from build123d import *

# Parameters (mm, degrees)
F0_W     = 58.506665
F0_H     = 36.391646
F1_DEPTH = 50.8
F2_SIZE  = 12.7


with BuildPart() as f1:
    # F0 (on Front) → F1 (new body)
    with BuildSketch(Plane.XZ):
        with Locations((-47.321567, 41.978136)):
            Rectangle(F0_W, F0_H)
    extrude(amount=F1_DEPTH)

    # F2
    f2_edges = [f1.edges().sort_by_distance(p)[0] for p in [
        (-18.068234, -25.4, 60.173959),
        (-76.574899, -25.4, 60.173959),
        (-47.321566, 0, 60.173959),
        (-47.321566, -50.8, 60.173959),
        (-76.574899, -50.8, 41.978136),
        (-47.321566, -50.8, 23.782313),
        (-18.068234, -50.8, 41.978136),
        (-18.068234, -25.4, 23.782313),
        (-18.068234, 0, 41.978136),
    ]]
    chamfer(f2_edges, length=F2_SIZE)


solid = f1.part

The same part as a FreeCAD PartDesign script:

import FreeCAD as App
import Part
import Sketcher
Q = App.Units.Quantity


def edges_at(feature, points):
    """Names of the edges that pass closest to the given points."""
    edges = feature.Shape.Edges
    near = lambda p: min(range(len(edges)), key=lambda i: edges[i].distToShape(Part.Vertex(*p))[0])
    return sorted({f"Edge{near(p) + 1}" for p in points})

doc = App.newDocument("Part")
params = doc.addObject("Spreadsheet::Sheet", "Params")
for row, (alias, value) in enumerate([
    ("pad1_length", "2 in"),
    ("chamfer_size", "0.5 in"),
], start=1):
    params.set(f"A{row}", alias)
    params.set(f"B{row}", "=" + value)
    params.setAlias(f"B{row}", alias)

body = doc.addObject("PartDesign::Body", "Body")

# Sketch on XZ plane
sketch1 = doc.addObject("Sketcher::SketchObject", "Sketch")
body.addObject(sketch1)
sketch1.AttachmentSupport = (doc.XZ_Plane, [""])
sketch1.MapMode = "FlatFace"
sketch1.addGeometry(Part.LineSegment(App.Vector(-76.5749, 60.173959, 0), App.Vector(-76.5749, 23.782313, 0)), False)
sketch1.addGeometry(Part.LineSegment(App.Vector(-76.5749, 23.782313, 0), App.Vector(-18.068234, 23.782313, 0)), False)
sketch1.addGeometry(Part.LineSegment(App.Vector(-18.068234, 23.782313, 0), App.Vector(-18.068234, 60.173959, 0)), False)
sketch1.addGeometry(Part.LineSegment(App.Vector(-18.068234, 60.173959, 0), App.Vector(-76.5749, 60.173959, 0)), False)
sketch1.addConstraint(Sketcher.Constraint("Coincident", 0, 2, 1, 1))
sketch1.addConstraint(Sketcher.Constraint("Coincident", 1, 2, 2, 1))
sketch1.addConstraint(Sketcher.Constraint("Coincident", 2, 2, 3, 1))
sketch1.addConstraint(Sketcher.Constraint("Coincident", 3, 2, 0, 1))
sketch1.addConstraint(Sketcher.Constraint("Vertical", 0))
sketch1.addConstraint(Sketcher.Constraint("Horizontal", 1))
sketch1.addConstraint(Sketcher.Constraint("Vertical", 2))
sketch1.addConstraint(Sketcher.Constraint("Horizontal", 3))
sketch1.addConstraint(Sketcher.Constraint("DistanceX", 0, 2, -1, 1, Q("76.5749 mm")))
sketch1.addConstraint(Sketcher.Constraint("DistanceX", 1, 1, 1, 2, Q("58.506665 mm")))
sketch1.addConstraint(Sketcher.Constraint("DistanceY", 0, 2, 0, 1, Q("36.391646 mm")))
sketch1.addConstraint(Sketcher.Constraint("DistanceY", -1, 1, 2, 2, Q("60.173959 mm")))
pad1 = doc.addObject("PartDesign::Pad", "Pad")
body.addObject(pad1)
pad1.Profile = sketch1
pad1.setExpression("Length", "Params.pad1_length")
doc.recompute()

chamfer = doc.addObject("PartDesign::Chamfer", "Chamfer")
body.addObject(chamfer)
chamfer.Base = (pad1, edges_at(pad1, [
    (-18.068, -25.4, 60.174),
    (-76.575, -25.4, 60.174),
    (-47.322, 0, 60.174),
    (-47.322, -50.8, 60.174),
    (-76.575, -50.8, 41.978),
    (-47.322, -50.8, 23.782),
    (-18.068, -50.8, 41.978),
    (-18.068, -25.4, 23.782),
    (-18.068, 0, 41.978),
]))
chamfer.setExpression("Size", "Params.chamfer_size")

doc.recompute()
